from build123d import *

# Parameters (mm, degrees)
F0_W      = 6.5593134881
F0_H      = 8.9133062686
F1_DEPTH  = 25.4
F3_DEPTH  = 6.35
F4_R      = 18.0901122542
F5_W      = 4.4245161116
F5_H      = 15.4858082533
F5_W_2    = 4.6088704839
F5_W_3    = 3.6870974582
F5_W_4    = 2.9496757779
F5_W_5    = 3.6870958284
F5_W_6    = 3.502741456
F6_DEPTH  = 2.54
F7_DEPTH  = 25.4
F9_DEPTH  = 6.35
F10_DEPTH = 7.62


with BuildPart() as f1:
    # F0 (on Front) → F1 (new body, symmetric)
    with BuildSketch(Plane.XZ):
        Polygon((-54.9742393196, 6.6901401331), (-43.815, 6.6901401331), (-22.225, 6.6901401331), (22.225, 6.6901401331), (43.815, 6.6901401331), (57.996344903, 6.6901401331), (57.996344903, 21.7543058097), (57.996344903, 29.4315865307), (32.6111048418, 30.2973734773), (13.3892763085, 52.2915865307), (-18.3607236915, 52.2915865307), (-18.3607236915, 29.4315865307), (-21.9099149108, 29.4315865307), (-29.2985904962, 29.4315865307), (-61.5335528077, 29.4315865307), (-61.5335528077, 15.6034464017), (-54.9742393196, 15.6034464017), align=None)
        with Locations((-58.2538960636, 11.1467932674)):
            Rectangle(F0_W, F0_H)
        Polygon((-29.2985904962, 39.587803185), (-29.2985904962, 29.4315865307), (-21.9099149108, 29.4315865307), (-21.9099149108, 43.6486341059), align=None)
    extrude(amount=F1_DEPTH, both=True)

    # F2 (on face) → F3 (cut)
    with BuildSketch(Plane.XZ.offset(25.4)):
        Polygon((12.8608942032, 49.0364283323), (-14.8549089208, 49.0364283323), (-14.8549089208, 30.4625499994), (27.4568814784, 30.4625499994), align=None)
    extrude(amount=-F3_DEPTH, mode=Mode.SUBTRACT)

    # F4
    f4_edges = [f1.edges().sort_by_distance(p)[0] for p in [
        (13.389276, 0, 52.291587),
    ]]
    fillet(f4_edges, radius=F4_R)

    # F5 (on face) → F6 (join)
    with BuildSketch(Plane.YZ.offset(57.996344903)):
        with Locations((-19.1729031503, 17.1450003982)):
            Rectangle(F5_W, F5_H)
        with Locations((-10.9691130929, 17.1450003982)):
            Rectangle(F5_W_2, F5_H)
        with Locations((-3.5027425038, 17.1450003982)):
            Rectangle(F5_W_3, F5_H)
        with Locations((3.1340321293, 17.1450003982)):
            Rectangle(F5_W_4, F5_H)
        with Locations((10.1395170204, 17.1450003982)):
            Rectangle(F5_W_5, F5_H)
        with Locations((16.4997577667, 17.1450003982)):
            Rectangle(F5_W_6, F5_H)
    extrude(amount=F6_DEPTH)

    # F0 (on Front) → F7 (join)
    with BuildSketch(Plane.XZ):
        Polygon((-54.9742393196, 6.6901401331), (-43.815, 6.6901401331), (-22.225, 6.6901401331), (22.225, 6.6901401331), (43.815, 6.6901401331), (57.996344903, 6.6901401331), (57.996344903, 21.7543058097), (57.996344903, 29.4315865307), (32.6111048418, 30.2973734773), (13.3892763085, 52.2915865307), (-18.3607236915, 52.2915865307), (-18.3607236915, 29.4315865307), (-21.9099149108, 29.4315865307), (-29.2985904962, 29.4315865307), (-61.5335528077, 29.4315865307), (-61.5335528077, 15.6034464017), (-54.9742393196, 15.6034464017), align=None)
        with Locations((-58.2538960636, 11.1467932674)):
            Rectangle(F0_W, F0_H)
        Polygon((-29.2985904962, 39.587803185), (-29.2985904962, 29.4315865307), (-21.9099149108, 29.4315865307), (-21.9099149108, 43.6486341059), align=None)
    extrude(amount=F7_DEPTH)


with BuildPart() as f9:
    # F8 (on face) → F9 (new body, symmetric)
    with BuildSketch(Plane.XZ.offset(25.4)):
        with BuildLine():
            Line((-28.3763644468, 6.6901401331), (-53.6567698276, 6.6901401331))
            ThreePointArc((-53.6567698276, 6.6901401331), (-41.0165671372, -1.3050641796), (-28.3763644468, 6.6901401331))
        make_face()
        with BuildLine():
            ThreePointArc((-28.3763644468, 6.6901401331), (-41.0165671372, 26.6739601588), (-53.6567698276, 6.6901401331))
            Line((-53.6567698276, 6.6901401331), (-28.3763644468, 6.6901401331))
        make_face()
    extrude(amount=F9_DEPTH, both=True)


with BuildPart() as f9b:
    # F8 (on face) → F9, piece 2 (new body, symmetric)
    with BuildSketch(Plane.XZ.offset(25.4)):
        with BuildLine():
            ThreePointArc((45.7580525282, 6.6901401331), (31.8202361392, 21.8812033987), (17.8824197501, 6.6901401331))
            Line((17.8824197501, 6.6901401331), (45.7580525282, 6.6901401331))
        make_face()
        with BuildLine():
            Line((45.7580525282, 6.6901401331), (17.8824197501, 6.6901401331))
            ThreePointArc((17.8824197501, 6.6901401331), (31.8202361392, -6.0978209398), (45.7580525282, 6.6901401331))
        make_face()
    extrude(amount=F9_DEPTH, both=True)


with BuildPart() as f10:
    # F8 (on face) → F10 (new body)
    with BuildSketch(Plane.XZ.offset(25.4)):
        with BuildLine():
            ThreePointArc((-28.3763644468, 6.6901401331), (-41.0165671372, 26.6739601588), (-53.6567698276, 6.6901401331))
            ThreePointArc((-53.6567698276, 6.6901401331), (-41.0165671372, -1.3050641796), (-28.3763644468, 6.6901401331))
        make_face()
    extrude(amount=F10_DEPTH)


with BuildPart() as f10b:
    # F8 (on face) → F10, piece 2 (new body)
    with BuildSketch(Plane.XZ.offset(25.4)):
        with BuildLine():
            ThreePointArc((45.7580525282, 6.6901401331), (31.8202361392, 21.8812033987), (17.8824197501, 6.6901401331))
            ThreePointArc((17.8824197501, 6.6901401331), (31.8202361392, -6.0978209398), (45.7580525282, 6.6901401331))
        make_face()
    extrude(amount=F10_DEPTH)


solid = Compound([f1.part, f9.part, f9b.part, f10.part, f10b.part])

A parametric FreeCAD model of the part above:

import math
import FreeCAD as App
import Part
import Sketcher

V = App.Vector
Q = App.Units.Quantity


def edges_at(feature, points):
    """Names of the edges that pass closest to the given points."""
    edges = feature.Shape.Edges
    near = lambda p: min(range(len(edges)), key=lambda i: edges[i].distToShape(Part.Vertex(*p))[0])
    return sorted({f"Edge{near(p) + 1}" for p in points})


def add_polygon(sketch, points):
    """Adds a closed chain of lines whose ends are joined by coincident constraints."""
    first, n = sketch.GeometryCount, len(points)
    for a, b in zip(points, points[1:] + points[:1]):
        sketch.addGeometry(Part.LineSegment(App.Vector(*a, 0), App.Vector(*b, 0)), False)
    for i in range(n):
        sketch.addConstraint(Sketcher.Constraint("Coincident", first + i, 2, first + (i + 1) % n, 1))

doc = App.newDocument("Part")
body = doc.addObject("PartDesign::Body", "Body")

sketch1 = body.newObject("Sketcher::SketchObject", "Sketch")
sketch1.AttachmentSupport = (doc.getObject("XZ_Plane"), [""])
sketch1.MapMode = "FlatFace"
add_polygon(sketch1, [(58, 6.7), (58, 29.4), (32.6, 30.3), (13.4, 52.3), (-18.4, 52.3), (-18.4, 29.4), (-21.9, 29.4), (-21.9, 43.6), (-29.3, 39.6), (-29.3, 29.4), (-61.5, 29.4), (-61.5, 15.6), (-61.5, 6.7)])
sketch1.addConstraint(Sketcher.Constraint("Vertical", 0))
sketch1.addConstraint(Sketcher.Constraint("Horizontal", 3))
sketch1.addConstraint(Sketcher.Constraint("Vertical", 4))
sketch1.addConstraint(Sketcher.Constraint("Horizontal", 5))
sketch1.addConstraint(Sketcher.Constraint("Vertical", 6))
sketch1.addConstraint(Sketcher.Constraint("Vertical", 8))
sketch1.addConstraint(Sketcher.Constraint("Horizontal", 9))
sketch1.addConstraint(Sketcher.Constraint("Vertical", 10))
sketch1.addConstraint(Sketcher.Constraint("Vertical", 11))
sketch1.addConstraint(Sketcher.Constraint("Horizontal", 12))
sketch1.addConstraint(Sketcher.Constraint("Horizontal", 0, 2, 4, 2))
sketch1.addConstraint(Sketcher.Constraint("Horizontal", 5, 2, 8, 2))
sketch1.addConstraint(Sketcher.Constraint("Distance", 1, Q("1 in")))
sketch1.addConstraint(Sketcher.Constraint("DistanceY", 4, 2, 4, 1, Q("0.9 in")))
sketch1.addConstraint(Sketcher.Constraint("DistanceX", 3, 2, 3, 1, Q("1.25 in")))
sketch1.addConstraint(Sketcher.Constraint("Distance", 2, Q("1.15 in")))
sketch1.addConstraint(Sketcher.Constraint("DistanceX", 5, 2, 5, 1, 3.549191))
sketch1.addConstraint(Sketcher.Constraint("DistanceY", 10, 2, 10, 1, 13.82814))
sketch1.addConstraint(Sketcher.Constraint("DistanceX", 9, 2, 9, 1, 32.234962))
sketch1.addConstraint(Sketcher.Constraint("DistanceX", 12, 1, 12, 2, 119.529898))
sketch1.addConstraint(Sketcher.Constraint("DistanceY", 0, 1, 0, 2, 22.741446))
sketch1.addConstraint(Sketcher.Constraint("DistanceY", 6, 1, 6, 2, 14.217048))
sketch1.addConstraint(Sketcher.Constraint("DistanceY", 8, 2, 8, 1, 10.156217))
sketch1.addConstraint(Sketcher.Constraint("DistanceX", 7, 2, -1, 1, 29.29859))
sketch1.addConstraint(Sketcher.Constraint("DistanceY", -1, 1, 11, 2, 6.69014))
sketch1.addConstraint(Sketcher.Constraint("DistanceX", 1, 2, 0, 2, 25.38524))
pad1 = body.newObject("PartDesign::Pad", "Pad")
pad1.Profile = sketch1
pad1.Length = Q("2 in")
pad1.Midplane = True

sketch2 = body.newObject("Sketcher::SketchObject", "Sketch001")
sketch2.AttachmentSupport = (doc.getObject("XZ_Plane"), [""])
sketch2.MapMode = "FlatFace"
sketch2.AttachmentOffset = App.Placement(V(0, 0, 1 * 25.4), App.Rotation())
add_polygon(sketch2, [(13, 49), (-15, 49), (-15, 30), (27, 30)])
sketch2.addConstraint(Sketcher.Constraint("Horizontal", 0))
sketch2.addConstraint(Sketcher.Constraint("Vertical", 1))
sketch2.addConstraint(Sketcher.Constraint("Horizontal", 2))
sketch2.addConstraint(Sketcher.Constraint("DistanceX", 2, 1, 2, 2, 42.31179))
sketch2.addConstraint(Sketcher.Constraint("DistanceY", 1, 2, 1, 1, 18.573878))
sketch2.addConstraint(Sketcher.Constraint("DistanceX", 0, 2, 0, 1, 27.715803))
sketch2.addConstraint(Sketcher.Constraint("DistanceX", 0, 2, -1, 1, 14.854909))
sketch2.addConstraint(Sketcher.Constraint("DistanceY", -1, 1, 0, 2, 49.036428))
pocket1 = body.newObject("PartDesign::Pocket", "Pocket")
pocket1.Profile = sketch2
pocket1.Length = Q("0.25 in")
doc.recompute()

fillet = body.newObject("PartDesign::Fillet", "Fillet")
fillet.Base = (pocket1, edges_at(pocket1, [(13.389, 0, 52.292)]))
fillet.Radius = 18.090112

sketch3 = body.newObject("Sketcher::SketchObject", "Sketch002")
sketch3.AttachmentSupport = (doc.getObject("YZ_Plane"), [""])
sketch3.MapMode = "FlatFace"
sketch3.AttachmentOffset = App.Placement(V(0, 0, 57.996345), App.Rotation())
add_polygon(sketch3, [(-21.4, 24.9), (-21.4, 9.4), (-17, 9.4), (-17, 24.9)])
add_polygon(sketch3, [(-13.3, 24.9), (-13.3, 9.4), (-8.7, 9.4), (-8.7, 24.9)])
add_polygon(sketch3, [(-5.3, 24.9), (-5.3, 9.4), (-1.7, 9.4), (-1.7, 24.9)])
add_polygon(sketch3, [(1.7, 24.9), (1.7, 9.4), (4.6, 9.4), (4.6, 24.9)])
add_polygon(sketch3, [(8.3, 24.9), (8.3, 9.4), (12, 9.4), (12, 24.9)])
add_polygon(sketch3, [(14.7, 24.9), (14.7, 9.4), (18.3, 9.4), (18.3, 24.9)])
sketch3.addConstraint(Sketcher.Constraint("Vertical", 0))
sketch3.addConstraint(Sketcher.Constraint("Horizontal", 1))
sketch3.addConstraint(Sketcher.Constraint("Vertical", 2))
sketch3.addConstraint(Sketcher.Constraint("Horizontal", 3))
sketch3.addConstraint(Sketcher.Constraint("Vertical", 4))
sketch3.addConstraint(Sketcher.Constraint("Horizontal", 5))
sketch3.addConstraint(Sketcher.Constraint("Vertical", 6))
sketch3.addConstraint(Sketcher.Constraint("Horizontal", 7))
sketch3.addConstraint(Sketcher.Constraint("Vertical", 8))
sketch3.addConstraint(Sketcher.Constraint("Horizontal", 9))
sketch3.addConstraint(Sketcher.Constraint("Vertical", 10))
sketch3.addConstraint(Sketcher.Constraint("Horizontal", 11))
sketch3.addConstraint(Sketcher.Constraint("Vertical", 12))
sketch3.addConstraint(Sketcher.Constraint("Horizontal", 13))
sketch3.addConstraint(Sketcher.Constraint("Vertical", 14))
sketch3.addConstraint(Sketcher.Constraint("Horizontal", 15))
sketch3.addConstraint(Sketcher.Constraint("Vertical", 16))
sketch3.addConstraint(Sketcher.Constraint("Horizontal", 17))
sketch3.addConstraint(Sketcher.Constraint("Vertical", 18))
sketch3.addConstraint(Sketcher.Constraint("Horizontal", 19))
sketch3.addConstraint(Sketcher.Constraint("Vertical", 20))
sketch3.addConstraint(Sketcher.Constraint("Horizontal", 21))
sketch3.addConstraint(Sketcher.Constraint("Vertical", 22))
sketch3.addConstraint(Sketcher.Constraint("Horizontal", 23))
sketch3.addConstraint(Sketcher.Constraint("Symmetric", 9, 2, 12, 2, -2))
sketch3.addConstraint(Sketcher.Constraint("Horizontal", 1, 2, 4, 2))
sketch3.addConstraint(Sketcher.Constraint("Horizontal", 3, 2, 6, 2))
sketch3.addConstraint(Sketcher.Constraint("Horizontal", 5, 2, 8, 2))
sketch3.addConstraint(Sketcher.Constraint("Horizontal", 7, 2, 10, 2))
sketch3.addConstraint(Sketcher.Constraint("Horizontal", 11, 2, 14, 2))
sketch3.addConstraint(Sketcher.Constraint("Horizontal", 13, 2, 16, 2))
sketch3.addConstraint(Sketcher.Constraint("Horizontal", 15, 2, 18, 2))
sketch3.addConstraint(Sketcher.Constraint("Horizontal", 17, 2, 20, 2))
sketch3.addConstraint(Sketcher.Constraint("Horizontal", 19, 2, 22, 2))
sketch3.addConstraint(Sketcher.Constraint("Equal", 11, 17))
sketch3.addConstraint(Sketcher.Constraint("DistanceX", 5, 1, 5, 2, 4.60887))
sketch3.addConstraint(Sketcher.Constraint("DistanceX", 21, 1, 21, 2, 3.502741))
sketch3.addConstraint(Sketcher.Constraint("DistanceY", 0, 2, 0, 1, 15.485808))
sketch3.addConstraint(Sketcher.Constraint("DistanceX", 13, 2, 16, 2, 3.687099))
sketch3.addConstraint(Sketcher.Constraint("DistanceX", 1, 1, 1, 2, 4.424516))
sketch3.addConstraint(Sketcher.Constraint("DistanceX", 9, 1, 9, 2, 3.687097))
sketch3.addConstraint(Sketcher.Constraint("DistanceX", 13, 1, 13, 2, 2.949676))
sketch3.addConstraint(Sketcher.Constraint("DistanceX", 0, 2, -1, 1, 21.385161))
sketch3.addConstraint(Sketcher.Constraint("DistanceX", 4, 2, -1, 1, 13.273548))
sketch3.addConstraint(Sketcher.Constraint("DistanceX", 8, 2, -1, 1, 5.346291))
sketch3.addConstraint(Sketcher.Constraint("DistanceX", -1, 1, 21, 2, 18.251128))
sketch3.addConstraint(Sketcher.Constraint("DistanceY", -1, 1, 0, 2, 9.402096))
pad2 = body.newObject("PartDesign::Pad", "Pad001")
pad2.Profile = sketch3
pad2.Length = Q("0.1 in")

sketch4 = body.newObject("Sketcher::SketchObject", "Sketch003")
sketch4.AttachmentSupport = (doc.getObject("XZ_Plane"), [""])
sketch4.MapMode = "FlatFace"
add_polygon(sketch4, [(58, 6.7), (58, 29.4), (32.6, 30.3), (13.4, 52.3), (-18.4, 52.3), (-18.4, 29.4), (-21.9, 29.4), (-21.9, 43.6), (-29.3, 39.6), (-29.3, 29.4), (-61.5, 29.4), (-61.5, 15.6), (-61.5, 6.7)])
sketch4.addConstraint(Sketcher.Constraint("Vertical", 0))
sketch4.addConstraint(Sketcher.Constraint("Horizontal", 3))
sketch4.addConstraint(Sketcher.Constraint("Vertical", 4))
sketch4.addConstraint(Sketcher.Constraint("Horizontal", 5))
sketch4.addConstraint(Sketcher.Constraint("Vertical", 6))
sketch4.addConstraint(Sketcher.Constraint("Vertical", 8))
sketch4.addConstraint(Sketcher.Constraint("Horizontal", 9))
sketch4.addConstraint(Sketcher.Constraint("Vertical", 10))
sketch4.addConstraint(Sketcher.Constraint("Vertical", 11))
sketch4.addConstraint(Sketcher.Constraint("Horizontal", 12))
sketch4.addConstraint(Sketcher.Constraint("Horizontal", 0, 2, 4, 2))
sketch4.addConstraint(Sketcher.Constraint("Horizontal", 5, 2, 8, 2))
sketch4.addConstraint(Sketcher.Constraint("Distance", 1, Q("1 in")))
sketch4.addConstraint(Sketcher.Constraint("DistanceY", 4, 2, 4, 1, Q("0.9 in")))
sketch4.addConstraint(Sketcher.Constraint("DistanceX", 3, 2, 3, 1, Q("1.25 in")))
sketch4.addConstraint(Sketcher.Constraint("Distance", 2, Q("1.15 in")))
sketch4.addConstraint(Sketcher.Constraint("DistanceX", 5, 2, 5, 1, 3.549191))
sketch4.addConstraint(Sketcher.Constraint("DistanceY", 10, 2, 10, 1, 13.82814))
sketch4.addConstraint(Sketcher.Constraint("DistanceX", 9, 2, 9, 1, 32.234962))
sketch4.addConstraint(Sketcher.Constraint("DistanceX", 12, 1, 12, 2, 119.529898))
sketch4.addConstraint(Sketcher.Constraint("DistanceY", 0, 1, 0, 2, 22.741446))
sketch4.addConstraint(Sketcher.Constraint("DistanceY", 6, 1, 6, 2, 14.217048))
sketch4.addConstraint(Sketcher.Constraint("DistanceY", 8, 2, 8, 1, 10.156217))
sketch4.addConstraint(Sketcher.Constraint("DistanceX", 7, 2, -1, 1, 29.29859))
sketch4.addConstraint(Sketcher.Constraint("DistanceY", -1, 1, 11, 2, 6.69014))
sketch4.addConstraint(Sketcher.Constraint("DistanceX", 1, 2, 0, 2, 25.38524))
pad3 = body.newObject("PartDesign::Pad", "Pad002")
pad3.Profile = sketch4
pad3.Length = Q("1 in")
body2 = doc.addObject("PartDesign::Body", "Body001")

sketch5 = body2.newObject("Sketcher::SketchObject", "Sketch004")
sketch5.AttachmentSupport = (doc.getObject("XZ_Plane001"), [""])
sketch5.MapMode = "FlatFace"
sketch5.AttachmentOffset = App.Placement(V(0, 0, 1 * 25.4), App.Rotation())
sketch5.addGeometry(Part.ArcOfCircle(Part.Circle(V(-41, 13, 0), V(0, 0, 1), 14), math.radians(-155), math.radians(-25)), False)
sketch5.addGeometry(Part.ArcOfCircle(Part.Circle(V(-41, 13, 0), V(0, 0, 1), 14), math.radians(-25), math.radians(205)), False)
sketch5.addConstraint(Sketcher.Constraint("Tangent", 0, 1, 1, 2))
sketch5.addConstraint(Sketcher.Constraint("Coincident", 1, 1, 0, 2))
sketch5.addConstraint(Sketcher.Constraint("Horizontal", 0, 1, 1, 1))
sketch5.addConstraint(Sketcher.Constraint("Radius", 0, 13.989512))
sketch5.addConstraint(Sketcher.Constraint("DistanceX", 0, 1, -1, 1, 53.65677))
sketch5.addConstraint(Sketcher.Constraint("DistanceY", -1, 1, 0, 1, 6.69014))
sketch5.addConstraint(Sketcher.Constraint("DistanceX", 0, 3, -1, 1, 41.016567))
pad4 = body2.newObject("PartDesign::Pad", "Pad003")
pad4.Profile = sketch5
pad4.Length = Q("0.5 in")
pad4.Midplane = True
body3 = doc.addObject("PartDesign::Body", "Body002")

sketch6 = body3.newObject("Sketcher::SketchObject", "Sketch005")
sketch6.AttachmentSupport = (doc.getObject("XZ_Plane002"), [""])
sketch6.MapMode = "FlatFace"
sketch6.AttachmentOffset = App.Placement(V(0, 0, 1 * 25.4), App.Rotation())
sketch6.addGeometry(Part.ArcOfCircle(Part.Circle(V(32, 8, 0), V(0, 0, 1), 14), math.radians(-5), math.radians(185)), False)
sketch6.addGeometry(Part.ArcOfCircle(Part.Circle(V(32, 8, 0), V(0, 0, 1), 14), math.radians(-175), math.radians(-5)), False)
sketch6.addConstraint(Sketcher.Constraint("Tangent", 0, 1, 1, 2))
sketch6.addConstraint(Sketcher.Constraint("Coincident", 1, 1, 0, 2))
sketch6.addConstraint(Sketcher.Constraint("Horizontal", 0, 1, 1, 1))
sketch6.addConstraint(Sketcher.Constraint("Radius", 0, 13.989512))
sketch6.addConstraint(Sketcher.Constraint("DistanceY", -1, 1, 0, 3, 7.891691))
sketch6.addConstraint(Sketcher.Constraint("DistanceY", -1, 1, 0, 1, 6.69014))
sketch6.addConstraint(Sketcher.Constraint("DistanceX", -1, 1, 1, 1, 17.88242))
pad5 = body3.newObject("PartDesign::Pad", "Pad004")
pad5.Profile = sketch6
pad5.Length = Q("0.5 in")
pad5.Midplane = True
body4 = doc.addObject("PartDesign::Body", "Body003")

sketch7 = body4.newObject("Sketcher::SketchObject", "Sketch006")
sketch7.AttachmentSupport = (doc.getObject("XZ_Plane003"), [""])
sketch7.MapMode = "FlatFace"
sketch7.AttachmentOffset = App.Placement(V(0, 0, 1 * 25.4), App.Rotation())
sketch7.addGeometry(Part.ArcOfCircle(Part.Circle(V(-41, 13, 0), V(0, 0, 1), 14), math.radians(-25), math.radians(205)), False)
sketch7.addGeometry(Part.ArcOfCircle(Part.Circle(V(-41, 13, 0), V(0, 0, 1), 14), math.radians(-155), math.radians(-25)), False)
sketch7.addConstraint(Sketcher.Constraint("Tangent", 0, 1, 1, 2))
sketch7.addConstraint(Sketcher.Constraint("Coincident", 1, 1, 0, 2))
sketch7.addConstraint(Sketcher.Constraint("Horizontal", 0, 1, 1, 1))
sketch7.addConstraint(Sketcher.Constraint("Radius", 0, 13.989512))
sketch7.addConstraint(Sketcher.Constraint("DistanceY", -1, 1, 0, 1, 6.69014))
sketch7.addConstraint(Sketcher.Constraint("DistanceX", 1, 1, -1, 1, 53.65677))
sketch7.addConstraint(Sketcher.Constraint("DistanceX", 0, 3, -1, 1, 41.016567))
pad6 = body4.newObject("PartDesign::Pad", "Pad005")
pad6.Profile = sketch7
pad6.Length = Q("0.3 in")
body5 = doc.addObject("PartDesign::Body", "Body004")

sketch8 = body5.newObject("Sketcher::SketchObject", "Sketch007")
sketch8.AttachmentSupport = (doc.getObject("XZ_Plane004"), [""])
sketch8.MapMode = "FlatFace"
sketch8.AttachmentOffset = App.Placement(V(0, 0, 1 * 25.4), App.Rotation())
sketch8.addGeometry(Part.ArcOfCircle(Part.Circle(V(32, 8, 0), V(0, 0, 1), 14), math.radians(-5), math.radians(185)), False)
sketch8.addGeometry(Part.ArcOfCircle(Part.Circle(V(32, 8, 0), V(0, 0, 1), 14), math.radians(-175), math.radians(-5)), False)
sketch8.addConstraint(Sketcher.Constraint("Tangent", 0, 1, 1, 2))
sketch8.addConstraint(Sketcher.Constraint("Coincident", 1, 1, 0, 2))
sketch8.addConstraint(Sketcher.Constraint("Horizontal", 0, 1, 1, 1))
sketch8.addConstraint(Sketcher.Constraint("Radius", 0, 13.989512))
sketch8.addConstraint(Sketcher.Constraint("DistanceY", -1, 1, 0, 3, 7.891691))
sketch8.addConstraint(Sketcher.Constraint("DistanceY", -1, 1, 0, 1, 6.69014))
sketch8.addConstraint(Sketcher.Constraint("DistanceX", -1, 1, 1, 1, 17.88242))
pad7 = body5.newObject("PartDesign::Pad", "Pad006")
pad7.Profile = sketch8
pad7.Length = Q("0.3 in")

doc.recompute()
